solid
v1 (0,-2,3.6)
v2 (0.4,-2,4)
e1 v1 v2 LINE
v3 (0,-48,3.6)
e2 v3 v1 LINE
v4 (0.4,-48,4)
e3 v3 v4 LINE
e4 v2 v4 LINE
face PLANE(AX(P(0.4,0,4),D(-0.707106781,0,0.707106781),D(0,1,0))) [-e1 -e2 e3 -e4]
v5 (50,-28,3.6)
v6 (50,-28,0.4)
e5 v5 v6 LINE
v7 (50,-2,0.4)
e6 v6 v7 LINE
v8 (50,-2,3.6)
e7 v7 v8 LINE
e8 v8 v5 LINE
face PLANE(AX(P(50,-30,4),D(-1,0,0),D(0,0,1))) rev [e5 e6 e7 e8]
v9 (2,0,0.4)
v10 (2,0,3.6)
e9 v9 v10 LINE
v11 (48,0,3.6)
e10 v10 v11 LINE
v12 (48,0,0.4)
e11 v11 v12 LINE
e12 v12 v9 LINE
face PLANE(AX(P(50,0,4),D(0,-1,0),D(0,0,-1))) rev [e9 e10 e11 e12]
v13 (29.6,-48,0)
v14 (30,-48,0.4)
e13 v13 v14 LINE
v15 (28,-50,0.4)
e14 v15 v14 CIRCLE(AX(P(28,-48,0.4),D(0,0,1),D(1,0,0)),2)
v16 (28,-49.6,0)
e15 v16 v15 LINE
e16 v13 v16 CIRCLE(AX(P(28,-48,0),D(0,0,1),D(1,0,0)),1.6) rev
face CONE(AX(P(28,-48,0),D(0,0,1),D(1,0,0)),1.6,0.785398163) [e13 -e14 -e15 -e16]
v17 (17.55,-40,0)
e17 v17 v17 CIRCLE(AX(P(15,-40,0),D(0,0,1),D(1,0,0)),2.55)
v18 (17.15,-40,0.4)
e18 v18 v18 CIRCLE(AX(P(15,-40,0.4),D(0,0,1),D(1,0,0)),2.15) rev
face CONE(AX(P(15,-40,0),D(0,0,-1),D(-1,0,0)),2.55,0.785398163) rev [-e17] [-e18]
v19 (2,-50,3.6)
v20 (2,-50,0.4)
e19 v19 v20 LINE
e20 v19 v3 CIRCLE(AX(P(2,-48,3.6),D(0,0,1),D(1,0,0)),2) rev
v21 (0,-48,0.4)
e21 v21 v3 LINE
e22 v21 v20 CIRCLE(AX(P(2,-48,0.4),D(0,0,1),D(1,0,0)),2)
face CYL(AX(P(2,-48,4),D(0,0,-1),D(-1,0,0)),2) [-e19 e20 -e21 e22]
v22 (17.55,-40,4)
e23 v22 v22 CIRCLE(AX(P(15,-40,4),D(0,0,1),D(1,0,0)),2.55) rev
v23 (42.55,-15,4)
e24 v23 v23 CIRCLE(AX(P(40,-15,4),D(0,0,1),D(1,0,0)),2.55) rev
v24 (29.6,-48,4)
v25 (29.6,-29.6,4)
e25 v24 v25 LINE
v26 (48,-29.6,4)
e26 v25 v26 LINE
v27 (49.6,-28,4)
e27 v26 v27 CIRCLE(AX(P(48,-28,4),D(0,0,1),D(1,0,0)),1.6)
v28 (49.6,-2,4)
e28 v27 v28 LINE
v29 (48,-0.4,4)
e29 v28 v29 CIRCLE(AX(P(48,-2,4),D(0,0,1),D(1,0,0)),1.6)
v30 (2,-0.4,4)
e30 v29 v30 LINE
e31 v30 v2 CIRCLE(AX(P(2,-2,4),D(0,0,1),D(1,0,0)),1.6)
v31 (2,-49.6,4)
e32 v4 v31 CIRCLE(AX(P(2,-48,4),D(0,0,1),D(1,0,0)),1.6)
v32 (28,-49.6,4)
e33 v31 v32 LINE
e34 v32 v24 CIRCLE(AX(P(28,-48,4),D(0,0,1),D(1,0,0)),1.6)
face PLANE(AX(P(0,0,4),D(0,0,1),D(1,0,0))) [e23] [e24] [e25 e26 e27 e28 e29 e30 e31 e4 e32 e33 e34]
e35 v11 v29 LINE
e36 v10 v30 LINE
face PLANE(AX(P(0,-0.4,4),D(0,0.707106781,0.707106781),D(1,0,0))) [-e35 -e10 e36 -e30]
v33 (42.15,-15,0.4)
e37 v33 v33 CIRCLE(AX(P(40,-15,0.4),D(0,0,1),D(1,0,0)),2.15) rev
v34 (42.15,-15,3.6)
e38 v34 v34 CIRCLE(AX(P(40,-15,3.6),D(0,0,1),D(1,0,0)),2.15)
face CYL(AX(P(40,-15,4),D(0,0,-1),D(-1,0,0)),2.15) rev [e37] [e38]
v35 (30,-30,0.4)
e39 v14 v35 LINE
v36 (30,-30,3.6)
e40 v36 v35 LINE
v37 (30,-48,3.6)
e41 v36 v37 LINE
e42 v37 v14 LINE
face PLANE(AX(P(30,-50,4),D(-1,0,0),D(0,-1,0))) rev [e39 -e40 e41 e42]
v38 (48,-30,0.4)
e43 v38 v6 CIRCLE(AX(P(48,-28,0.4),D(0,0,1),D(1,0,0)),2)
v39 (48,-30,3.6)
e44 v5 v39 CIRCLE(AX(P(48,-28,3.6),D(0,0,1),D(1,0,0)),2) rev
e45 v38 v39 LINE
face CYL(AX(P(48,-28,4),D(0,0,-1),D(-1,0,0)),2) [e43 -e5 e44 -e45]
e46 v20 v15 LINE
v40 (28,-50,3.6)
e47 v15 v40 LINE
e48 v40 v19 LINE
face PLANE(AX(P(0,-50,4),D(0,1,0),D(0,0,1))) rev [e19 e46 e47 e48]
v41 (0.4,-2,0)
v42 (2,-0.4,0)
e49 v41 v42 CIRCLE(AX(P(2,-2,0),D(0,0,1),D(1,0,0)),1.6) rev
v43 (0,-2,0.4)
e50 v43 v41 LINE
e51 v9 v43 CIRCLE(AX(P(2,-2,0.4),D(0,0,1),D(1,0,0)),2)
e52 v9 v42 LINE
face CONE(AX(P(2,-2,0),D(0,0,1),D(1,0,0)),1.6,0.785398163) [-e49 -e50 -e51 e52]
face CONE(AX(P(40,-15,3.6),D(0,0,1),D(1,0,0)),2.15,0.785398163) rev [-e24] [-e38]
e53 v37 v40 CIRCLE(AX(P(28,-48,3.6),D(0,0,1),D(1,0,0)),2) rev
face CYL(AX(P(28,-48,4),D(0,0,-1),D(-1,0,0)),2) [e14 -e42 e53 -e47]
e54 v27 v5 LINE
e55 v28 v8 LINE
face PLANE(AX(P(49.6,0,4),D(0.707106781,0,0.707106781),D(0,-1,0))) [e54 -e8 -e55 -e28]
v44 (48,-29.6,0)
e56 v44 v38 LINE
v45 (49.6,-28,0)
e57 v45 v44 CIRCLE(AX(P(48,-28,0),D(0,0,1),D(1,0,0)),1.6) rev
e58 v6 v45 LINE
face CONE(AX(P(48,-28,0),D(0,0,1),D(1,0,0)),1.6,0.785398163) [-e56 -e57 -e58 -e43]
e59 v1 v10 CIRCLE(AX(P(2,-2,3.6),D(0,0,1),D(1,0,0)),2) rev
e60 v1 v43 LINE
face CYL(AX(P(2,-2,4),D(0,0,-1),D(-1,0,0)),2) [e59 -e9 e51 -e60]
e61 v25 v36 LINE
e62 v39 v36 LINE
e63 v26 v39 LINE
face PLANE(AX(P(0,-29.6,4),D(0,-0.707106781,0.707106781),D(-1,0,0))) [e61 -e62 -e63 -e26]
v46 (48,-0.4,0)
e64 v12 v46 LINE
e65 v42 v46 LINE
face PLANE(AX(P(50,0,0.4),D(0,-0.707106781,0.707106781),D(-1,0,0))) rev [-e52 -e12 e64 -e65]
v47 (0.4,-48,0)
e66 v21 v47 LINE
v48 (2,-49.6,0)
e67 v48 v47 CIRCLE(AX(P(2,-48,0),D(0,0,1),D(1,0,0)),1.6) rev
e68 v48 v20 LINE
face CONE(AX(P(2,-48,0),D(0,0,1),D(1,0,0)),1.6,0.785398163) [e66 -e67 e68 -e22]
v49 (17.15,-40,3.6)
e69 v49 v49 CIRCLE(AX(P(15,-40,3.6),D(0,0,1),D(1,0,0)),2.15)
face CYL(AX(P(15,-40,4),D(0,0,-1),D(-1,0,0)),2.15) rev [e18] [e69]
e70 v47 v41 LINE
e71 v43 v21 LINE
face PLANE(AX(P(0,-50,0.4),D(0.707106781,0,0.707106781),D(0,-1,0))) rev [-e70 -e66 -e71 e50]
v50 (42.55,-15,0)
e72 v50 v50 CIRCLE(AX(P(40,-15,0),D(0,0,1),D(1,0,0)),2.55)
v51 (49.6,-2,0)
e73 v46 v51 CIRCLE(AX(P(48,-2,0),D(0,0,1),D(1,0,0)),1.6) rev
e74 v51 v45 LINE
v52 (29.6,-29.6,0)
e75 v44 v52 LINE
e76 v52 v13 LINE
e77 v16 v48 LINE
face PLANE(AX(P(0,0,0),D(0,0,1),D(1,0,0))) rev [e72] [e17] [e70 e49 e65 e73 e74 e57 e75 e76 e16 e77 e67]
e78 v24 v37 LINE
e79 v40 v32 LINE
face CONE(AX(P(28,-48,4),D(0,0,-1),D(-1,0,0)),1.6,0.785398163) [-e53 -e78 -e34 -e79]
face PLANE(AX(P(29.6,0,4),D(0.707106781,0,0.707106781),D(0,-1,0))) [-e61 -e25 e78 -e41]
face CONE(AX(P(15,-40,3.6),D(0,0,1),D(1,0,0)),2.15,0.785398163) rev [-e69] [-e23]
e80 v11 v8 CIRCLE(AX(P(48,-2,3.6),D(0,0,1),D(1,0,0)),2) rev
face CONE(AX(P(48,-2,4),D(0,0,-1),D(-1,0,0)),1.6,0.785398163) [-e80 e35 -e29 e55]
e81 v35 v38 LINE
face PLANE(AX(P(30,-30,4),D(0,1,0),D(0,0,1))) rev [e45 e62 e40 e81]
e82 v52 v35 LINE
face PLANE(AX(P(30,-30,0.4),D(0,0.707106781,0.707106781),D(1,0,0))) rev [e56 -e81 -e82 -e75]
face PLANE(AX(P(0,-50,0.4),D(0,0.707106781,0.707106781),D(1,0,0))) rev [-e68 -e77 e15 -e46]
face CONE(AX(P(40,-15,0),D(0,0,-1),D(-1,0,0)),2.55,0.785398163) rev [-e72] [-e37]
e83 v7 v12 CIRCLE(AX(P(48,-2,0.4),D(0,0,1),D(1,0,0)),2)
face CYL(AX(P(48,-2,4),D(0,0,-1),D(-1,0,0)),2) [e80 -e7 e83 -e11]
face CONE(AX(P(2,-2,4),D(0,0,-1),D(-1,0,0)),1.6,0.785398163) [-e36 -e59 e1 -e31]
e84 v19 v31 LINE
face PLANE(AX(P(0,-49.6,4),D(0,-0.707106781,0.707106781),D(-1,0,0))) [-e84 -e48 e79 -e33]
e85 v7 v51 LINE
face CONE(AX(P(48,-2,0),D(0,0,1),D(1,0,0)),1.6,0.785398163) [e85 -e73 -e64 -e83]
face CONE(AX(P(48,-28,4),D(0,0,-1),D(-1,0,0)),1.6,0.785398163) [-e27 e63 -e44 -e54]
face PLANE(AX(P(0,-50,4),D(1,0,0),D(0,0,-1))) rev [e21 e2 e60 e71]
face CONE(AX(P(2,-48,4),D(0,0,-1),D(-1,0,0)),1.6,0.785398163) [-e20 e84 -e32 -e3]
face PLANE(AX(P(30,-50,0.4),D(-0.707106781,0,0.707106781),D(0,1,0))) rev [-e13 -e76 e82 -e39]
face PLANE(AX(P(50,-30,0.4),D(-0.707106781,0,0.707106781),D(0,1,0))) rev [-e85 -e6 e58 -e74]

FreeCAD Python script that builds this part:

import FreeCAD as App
import Part
import Sketcher

V = App.Vector


def edges_at(feature, points):
    """Names of the edges that pass closest to the given points."""
    edges = feature.Shape.Edges
    near = lambda p: min(range(len(edges)), key=lambda i: edges[i].distToShape(Part.Vertex(*p))[0])
    return sorted({f"Edge{near(p) + 1}" for p in points})


def add_polygon(sketch, points):
    """Adds a closed chain of lines whose ends are joined by coincident constraints."""
    first, n = sketch.GeometryCount, len(points)
    for a, b in zip(points, points[1:] + points[:1]):
        sketch.addGeometry(Part.LineSegment(App.Vector(*a, 0), App.Vector(*b, 0)), False)
    for i in range(n):
        sketch.addConstraint(Sketcher.Constraint("Coincident", first + i, 2, first + (i + 1) % n, 1))

doc = App.newDocument("Part")
body = doc.addObject("PartDesign::Body", "Body")

sketch1 = body.newObject("Sketcher::SketchObject", "Sketch")
sketch1.AttachmentSupport = (doc.getObject("XY_Plane"), [""])
sketch1.MapMode = "FlatFace"
add_polygon(sketch1, [(0, -50), (30, -50), (30, -30), (50, -30), (50, 0), (0, 0)])
sketch1.addGeometry(Part.Circle(V(15, -40, 0), V(0, 0, 1), 2.1), False)
sketch1.addGeometry(Part.Circle(V(40, -15, 0), V(0, 0, 1), 2.1), False)
sketch1.addConstraint([
    Sketcher.Constraint("Horizontal", 0),
    Sketcher.Constraint("Vertical", 1),
    Sketcher.Constraint("Horizontal", 2),
    Sketcher.Constraint("Vertical", 3),
    Sketcher.Constraint("Horizontal", 4),
    Sketcher.Constraint("Vertical", 5),
    Sketcher.Constraint("Coincident", 4, 2, -1, 1),
    Sketcher.Constraint("Equal", 6, 7),
    Sketcher.Constraint("Equal", 2, 1),
    Sketcher.Constraint("Equal", 0, 3),
    Sketcher.Constraint("Diameter", 6, 4.3),
    Sketcher.Constraint("DistanceX", 0, 1, 0, 2, 30.0),
    Sketcher.Constraint("DistanceX", 2, 1, 2, 2, 20.0),
    Sketcher.Constraint("DistanceX", -1, 1, 6, 3, 15.0),
    Sketcher.Constraint("DistanceY", 6, 3, -1, 1, 40.0),
    Sketcher.Constraint("DistanceX", -1, 1, 7, 3, 40.0),
    Sketcher.Constraint("DistanceY", 7, 3, -1, 1, 15.0),
])
pad1 = body.newObject("PartDesign::Pad", "Pad")
pad1.Profile = sketch1
pad1.Length = 4
doc.recompute()

fillet = body.newObject("PartDesign::Fillet", "Fillet")
fillet.Base = (pad1, edges_at(pad1, [
    (0, 0, 2),
    (50, 0, 2),
    (50, -30, 2),
    (30, -50, 2),
    (0, -50, 2),
]))
fillet.Radius = 2
doc.recompute()

chamfer = body.newObject("PartDesign::Chamfer", "Chamfer")
chamfer.Base = (fillet, edges_at(fillet, [
    (39, -30, 4),
    (12.85, -40, 0),
    (12.85, -40, 4),
    (37.85, -15, 0),
    (37.85, -15, 4),
    (0, -25, 0),
    (0, -25, 4),
    (25, 0, 0),
    (50, -15, 0),
    (30, -39, 0),
    (15, -50, 0),
    (29.414, -49.414, 0),
    (0.586, -49.414, 0),
    (49.414, -29.414, 0),
    (49.414, -0.586, 0),
    (0.586, -0.586, 0),
    (25, 0, 4),
    (15, -50, 4),
    (30, -39, 4),
    (50, -15, 4),
    (29.414, -49.414, 4),
    (0.586, -49.414, 4),
    (49.414, -29.414, 4),
    (49.414, -0.586, 4),
    (0.586, -0.586, 4),
    (39, -30, 0),
]))
chamfer.Size = 0.4

doc.recompute()
